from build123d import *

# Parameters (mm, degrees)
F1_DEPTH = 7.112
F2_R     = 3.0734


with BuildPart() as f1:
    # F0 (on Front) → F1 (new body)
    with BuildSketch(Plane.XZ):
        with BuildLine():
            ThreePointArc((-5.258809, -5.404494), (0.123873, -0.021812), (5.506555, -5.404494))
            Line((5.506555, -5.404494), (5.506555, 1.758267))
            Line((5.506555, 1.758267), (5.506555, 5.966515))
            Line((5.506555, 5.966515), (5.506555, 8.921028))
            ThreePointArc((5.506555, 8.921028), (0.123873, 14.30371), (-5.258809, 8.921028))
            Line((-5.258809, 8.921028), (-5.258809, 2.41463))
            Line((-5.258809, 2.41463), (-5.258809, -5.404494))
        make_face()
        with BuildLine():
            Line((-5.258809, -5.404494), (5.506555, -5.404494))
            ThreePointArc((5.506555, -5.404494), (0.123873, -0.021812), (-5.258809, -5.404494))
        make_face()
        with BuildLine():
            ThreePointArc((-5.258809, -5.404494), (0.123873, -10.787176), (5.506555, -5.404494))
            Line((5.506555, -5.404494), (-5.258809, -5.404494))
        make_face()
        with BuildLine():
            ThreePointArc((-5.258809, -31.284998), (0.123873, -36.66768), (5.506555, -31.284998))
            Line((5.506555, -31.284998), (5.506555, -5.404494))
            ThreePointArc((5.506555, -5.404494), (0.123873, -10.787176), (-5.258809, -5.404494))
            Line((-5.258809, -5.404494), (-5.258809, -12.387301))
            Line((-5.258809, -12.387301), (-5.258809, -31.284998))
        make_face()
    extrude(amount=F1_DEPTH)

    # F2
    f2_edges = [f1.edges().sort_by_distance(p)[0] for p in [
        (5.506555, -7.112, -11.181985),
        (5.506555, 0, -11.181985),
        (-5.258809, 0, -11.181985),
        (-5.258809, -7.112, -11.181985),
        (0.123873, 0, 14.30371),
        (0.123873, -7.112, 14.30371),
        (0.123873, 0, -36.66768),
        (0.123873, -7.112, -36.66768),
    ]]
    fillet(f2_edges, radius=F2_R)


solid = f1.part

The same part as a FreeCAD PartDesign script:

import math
import FreeCAD as App
import Part
import Sketcher
Q = App.Units.Quantity


def edges_at(feature, points):
    """Names of the edges that pass closest to the given points."""
    edges = feature.Shape.Edges
    near = lambda p: min(range(len(edges)), key=lambda i: edges[i].distToShape(Part.Vertex(*p))[0])
    return sorted({f"Edge{near(p) + 1}" for p in points})

doc = App.newDocument("Part")
body = doc.addObject("PartDesign::Body", "Body")

# Sketch on XZ plane
sketch1 = doc.addObject("Sketcher::SketchObject", "Sketch")
body.addObject(sketch1)
sketch1.AttachmentSupport = (doc.XZ_Plane, [""])
sketch1.MapMode = "FlatFace"
sketch1.addGeometry([
    Part.ArcOfCircle(Part.Circle(App.Vector(0, 9, 0), App.Vector(0, 0, 1), 5), math.radians(0), math.radians(180)),
    Part.LineSegment(App.Vector(-5, 9, 0), App.Vector(-5, -31, 0)),
    Part.ArcOfCircle(Part.Circle(App.Vector(0, -31, 0), App.Vector(0, 0, 1), 5), math.radians(180), math.radians(360)),
    Part.LineSegment(App.Vector(6, -31, 0), App.Vector(6, 9, 0)),
], False)
sketch1.addConstraint([
    Sketcher.Constraint("Tangent", 0, 2, 1, 1),
    Sketcher.Constraint("Tangent", 1, 2, 2, 1),
    Sketcher.Constraint("Tangent", 2, 2, 3, 1),
    Sketcher.Constraint("Tangent", 3, 2, 0, 1),
    Sketcher.Constraint("Vertical", 1),
    Sketcher.Constraint("Vertical", 3),
    Sketcher.Constraint("Radius", 0, 5.382682),
    Sketcher.Constraint("DistanceY", 2, 3, -1, 1, 31.284998),
    Sketcher.Constraint("DistanceY", 1, 2, 1, 1, 40.206026),
    Sketcher.Constraint("DistanceX", 0, 2, -1, 1, 5.258809),
])
pad1 = doc.addObject("PartDesign::Pad", "Pad")
body.addObject(pad1)
pad1.Profile = sketch1
pad1.Length = Q("0.28 in")
doc.recompute()

fillet = doc.addObject("PartDesign::Fillet", "Fillet")
body.addObject(fillet)
fillet.Base = (pad1, edges_at(pad1, [
    (5.507, -7.112, -11.182),
    (5.507, 0, -11.182),
    (-5.259, 0, -11.182),
    (-5.259, -7.112, -11.182),
    (0.124, 0, 14.304),
    (0.124, -7.112, 14.304),
    (0.124, 0, -36.668),
    (0.124, -7.112, -36.668),
]))
fillet.Radius = Q("0.121 in")

doc.recompute()
